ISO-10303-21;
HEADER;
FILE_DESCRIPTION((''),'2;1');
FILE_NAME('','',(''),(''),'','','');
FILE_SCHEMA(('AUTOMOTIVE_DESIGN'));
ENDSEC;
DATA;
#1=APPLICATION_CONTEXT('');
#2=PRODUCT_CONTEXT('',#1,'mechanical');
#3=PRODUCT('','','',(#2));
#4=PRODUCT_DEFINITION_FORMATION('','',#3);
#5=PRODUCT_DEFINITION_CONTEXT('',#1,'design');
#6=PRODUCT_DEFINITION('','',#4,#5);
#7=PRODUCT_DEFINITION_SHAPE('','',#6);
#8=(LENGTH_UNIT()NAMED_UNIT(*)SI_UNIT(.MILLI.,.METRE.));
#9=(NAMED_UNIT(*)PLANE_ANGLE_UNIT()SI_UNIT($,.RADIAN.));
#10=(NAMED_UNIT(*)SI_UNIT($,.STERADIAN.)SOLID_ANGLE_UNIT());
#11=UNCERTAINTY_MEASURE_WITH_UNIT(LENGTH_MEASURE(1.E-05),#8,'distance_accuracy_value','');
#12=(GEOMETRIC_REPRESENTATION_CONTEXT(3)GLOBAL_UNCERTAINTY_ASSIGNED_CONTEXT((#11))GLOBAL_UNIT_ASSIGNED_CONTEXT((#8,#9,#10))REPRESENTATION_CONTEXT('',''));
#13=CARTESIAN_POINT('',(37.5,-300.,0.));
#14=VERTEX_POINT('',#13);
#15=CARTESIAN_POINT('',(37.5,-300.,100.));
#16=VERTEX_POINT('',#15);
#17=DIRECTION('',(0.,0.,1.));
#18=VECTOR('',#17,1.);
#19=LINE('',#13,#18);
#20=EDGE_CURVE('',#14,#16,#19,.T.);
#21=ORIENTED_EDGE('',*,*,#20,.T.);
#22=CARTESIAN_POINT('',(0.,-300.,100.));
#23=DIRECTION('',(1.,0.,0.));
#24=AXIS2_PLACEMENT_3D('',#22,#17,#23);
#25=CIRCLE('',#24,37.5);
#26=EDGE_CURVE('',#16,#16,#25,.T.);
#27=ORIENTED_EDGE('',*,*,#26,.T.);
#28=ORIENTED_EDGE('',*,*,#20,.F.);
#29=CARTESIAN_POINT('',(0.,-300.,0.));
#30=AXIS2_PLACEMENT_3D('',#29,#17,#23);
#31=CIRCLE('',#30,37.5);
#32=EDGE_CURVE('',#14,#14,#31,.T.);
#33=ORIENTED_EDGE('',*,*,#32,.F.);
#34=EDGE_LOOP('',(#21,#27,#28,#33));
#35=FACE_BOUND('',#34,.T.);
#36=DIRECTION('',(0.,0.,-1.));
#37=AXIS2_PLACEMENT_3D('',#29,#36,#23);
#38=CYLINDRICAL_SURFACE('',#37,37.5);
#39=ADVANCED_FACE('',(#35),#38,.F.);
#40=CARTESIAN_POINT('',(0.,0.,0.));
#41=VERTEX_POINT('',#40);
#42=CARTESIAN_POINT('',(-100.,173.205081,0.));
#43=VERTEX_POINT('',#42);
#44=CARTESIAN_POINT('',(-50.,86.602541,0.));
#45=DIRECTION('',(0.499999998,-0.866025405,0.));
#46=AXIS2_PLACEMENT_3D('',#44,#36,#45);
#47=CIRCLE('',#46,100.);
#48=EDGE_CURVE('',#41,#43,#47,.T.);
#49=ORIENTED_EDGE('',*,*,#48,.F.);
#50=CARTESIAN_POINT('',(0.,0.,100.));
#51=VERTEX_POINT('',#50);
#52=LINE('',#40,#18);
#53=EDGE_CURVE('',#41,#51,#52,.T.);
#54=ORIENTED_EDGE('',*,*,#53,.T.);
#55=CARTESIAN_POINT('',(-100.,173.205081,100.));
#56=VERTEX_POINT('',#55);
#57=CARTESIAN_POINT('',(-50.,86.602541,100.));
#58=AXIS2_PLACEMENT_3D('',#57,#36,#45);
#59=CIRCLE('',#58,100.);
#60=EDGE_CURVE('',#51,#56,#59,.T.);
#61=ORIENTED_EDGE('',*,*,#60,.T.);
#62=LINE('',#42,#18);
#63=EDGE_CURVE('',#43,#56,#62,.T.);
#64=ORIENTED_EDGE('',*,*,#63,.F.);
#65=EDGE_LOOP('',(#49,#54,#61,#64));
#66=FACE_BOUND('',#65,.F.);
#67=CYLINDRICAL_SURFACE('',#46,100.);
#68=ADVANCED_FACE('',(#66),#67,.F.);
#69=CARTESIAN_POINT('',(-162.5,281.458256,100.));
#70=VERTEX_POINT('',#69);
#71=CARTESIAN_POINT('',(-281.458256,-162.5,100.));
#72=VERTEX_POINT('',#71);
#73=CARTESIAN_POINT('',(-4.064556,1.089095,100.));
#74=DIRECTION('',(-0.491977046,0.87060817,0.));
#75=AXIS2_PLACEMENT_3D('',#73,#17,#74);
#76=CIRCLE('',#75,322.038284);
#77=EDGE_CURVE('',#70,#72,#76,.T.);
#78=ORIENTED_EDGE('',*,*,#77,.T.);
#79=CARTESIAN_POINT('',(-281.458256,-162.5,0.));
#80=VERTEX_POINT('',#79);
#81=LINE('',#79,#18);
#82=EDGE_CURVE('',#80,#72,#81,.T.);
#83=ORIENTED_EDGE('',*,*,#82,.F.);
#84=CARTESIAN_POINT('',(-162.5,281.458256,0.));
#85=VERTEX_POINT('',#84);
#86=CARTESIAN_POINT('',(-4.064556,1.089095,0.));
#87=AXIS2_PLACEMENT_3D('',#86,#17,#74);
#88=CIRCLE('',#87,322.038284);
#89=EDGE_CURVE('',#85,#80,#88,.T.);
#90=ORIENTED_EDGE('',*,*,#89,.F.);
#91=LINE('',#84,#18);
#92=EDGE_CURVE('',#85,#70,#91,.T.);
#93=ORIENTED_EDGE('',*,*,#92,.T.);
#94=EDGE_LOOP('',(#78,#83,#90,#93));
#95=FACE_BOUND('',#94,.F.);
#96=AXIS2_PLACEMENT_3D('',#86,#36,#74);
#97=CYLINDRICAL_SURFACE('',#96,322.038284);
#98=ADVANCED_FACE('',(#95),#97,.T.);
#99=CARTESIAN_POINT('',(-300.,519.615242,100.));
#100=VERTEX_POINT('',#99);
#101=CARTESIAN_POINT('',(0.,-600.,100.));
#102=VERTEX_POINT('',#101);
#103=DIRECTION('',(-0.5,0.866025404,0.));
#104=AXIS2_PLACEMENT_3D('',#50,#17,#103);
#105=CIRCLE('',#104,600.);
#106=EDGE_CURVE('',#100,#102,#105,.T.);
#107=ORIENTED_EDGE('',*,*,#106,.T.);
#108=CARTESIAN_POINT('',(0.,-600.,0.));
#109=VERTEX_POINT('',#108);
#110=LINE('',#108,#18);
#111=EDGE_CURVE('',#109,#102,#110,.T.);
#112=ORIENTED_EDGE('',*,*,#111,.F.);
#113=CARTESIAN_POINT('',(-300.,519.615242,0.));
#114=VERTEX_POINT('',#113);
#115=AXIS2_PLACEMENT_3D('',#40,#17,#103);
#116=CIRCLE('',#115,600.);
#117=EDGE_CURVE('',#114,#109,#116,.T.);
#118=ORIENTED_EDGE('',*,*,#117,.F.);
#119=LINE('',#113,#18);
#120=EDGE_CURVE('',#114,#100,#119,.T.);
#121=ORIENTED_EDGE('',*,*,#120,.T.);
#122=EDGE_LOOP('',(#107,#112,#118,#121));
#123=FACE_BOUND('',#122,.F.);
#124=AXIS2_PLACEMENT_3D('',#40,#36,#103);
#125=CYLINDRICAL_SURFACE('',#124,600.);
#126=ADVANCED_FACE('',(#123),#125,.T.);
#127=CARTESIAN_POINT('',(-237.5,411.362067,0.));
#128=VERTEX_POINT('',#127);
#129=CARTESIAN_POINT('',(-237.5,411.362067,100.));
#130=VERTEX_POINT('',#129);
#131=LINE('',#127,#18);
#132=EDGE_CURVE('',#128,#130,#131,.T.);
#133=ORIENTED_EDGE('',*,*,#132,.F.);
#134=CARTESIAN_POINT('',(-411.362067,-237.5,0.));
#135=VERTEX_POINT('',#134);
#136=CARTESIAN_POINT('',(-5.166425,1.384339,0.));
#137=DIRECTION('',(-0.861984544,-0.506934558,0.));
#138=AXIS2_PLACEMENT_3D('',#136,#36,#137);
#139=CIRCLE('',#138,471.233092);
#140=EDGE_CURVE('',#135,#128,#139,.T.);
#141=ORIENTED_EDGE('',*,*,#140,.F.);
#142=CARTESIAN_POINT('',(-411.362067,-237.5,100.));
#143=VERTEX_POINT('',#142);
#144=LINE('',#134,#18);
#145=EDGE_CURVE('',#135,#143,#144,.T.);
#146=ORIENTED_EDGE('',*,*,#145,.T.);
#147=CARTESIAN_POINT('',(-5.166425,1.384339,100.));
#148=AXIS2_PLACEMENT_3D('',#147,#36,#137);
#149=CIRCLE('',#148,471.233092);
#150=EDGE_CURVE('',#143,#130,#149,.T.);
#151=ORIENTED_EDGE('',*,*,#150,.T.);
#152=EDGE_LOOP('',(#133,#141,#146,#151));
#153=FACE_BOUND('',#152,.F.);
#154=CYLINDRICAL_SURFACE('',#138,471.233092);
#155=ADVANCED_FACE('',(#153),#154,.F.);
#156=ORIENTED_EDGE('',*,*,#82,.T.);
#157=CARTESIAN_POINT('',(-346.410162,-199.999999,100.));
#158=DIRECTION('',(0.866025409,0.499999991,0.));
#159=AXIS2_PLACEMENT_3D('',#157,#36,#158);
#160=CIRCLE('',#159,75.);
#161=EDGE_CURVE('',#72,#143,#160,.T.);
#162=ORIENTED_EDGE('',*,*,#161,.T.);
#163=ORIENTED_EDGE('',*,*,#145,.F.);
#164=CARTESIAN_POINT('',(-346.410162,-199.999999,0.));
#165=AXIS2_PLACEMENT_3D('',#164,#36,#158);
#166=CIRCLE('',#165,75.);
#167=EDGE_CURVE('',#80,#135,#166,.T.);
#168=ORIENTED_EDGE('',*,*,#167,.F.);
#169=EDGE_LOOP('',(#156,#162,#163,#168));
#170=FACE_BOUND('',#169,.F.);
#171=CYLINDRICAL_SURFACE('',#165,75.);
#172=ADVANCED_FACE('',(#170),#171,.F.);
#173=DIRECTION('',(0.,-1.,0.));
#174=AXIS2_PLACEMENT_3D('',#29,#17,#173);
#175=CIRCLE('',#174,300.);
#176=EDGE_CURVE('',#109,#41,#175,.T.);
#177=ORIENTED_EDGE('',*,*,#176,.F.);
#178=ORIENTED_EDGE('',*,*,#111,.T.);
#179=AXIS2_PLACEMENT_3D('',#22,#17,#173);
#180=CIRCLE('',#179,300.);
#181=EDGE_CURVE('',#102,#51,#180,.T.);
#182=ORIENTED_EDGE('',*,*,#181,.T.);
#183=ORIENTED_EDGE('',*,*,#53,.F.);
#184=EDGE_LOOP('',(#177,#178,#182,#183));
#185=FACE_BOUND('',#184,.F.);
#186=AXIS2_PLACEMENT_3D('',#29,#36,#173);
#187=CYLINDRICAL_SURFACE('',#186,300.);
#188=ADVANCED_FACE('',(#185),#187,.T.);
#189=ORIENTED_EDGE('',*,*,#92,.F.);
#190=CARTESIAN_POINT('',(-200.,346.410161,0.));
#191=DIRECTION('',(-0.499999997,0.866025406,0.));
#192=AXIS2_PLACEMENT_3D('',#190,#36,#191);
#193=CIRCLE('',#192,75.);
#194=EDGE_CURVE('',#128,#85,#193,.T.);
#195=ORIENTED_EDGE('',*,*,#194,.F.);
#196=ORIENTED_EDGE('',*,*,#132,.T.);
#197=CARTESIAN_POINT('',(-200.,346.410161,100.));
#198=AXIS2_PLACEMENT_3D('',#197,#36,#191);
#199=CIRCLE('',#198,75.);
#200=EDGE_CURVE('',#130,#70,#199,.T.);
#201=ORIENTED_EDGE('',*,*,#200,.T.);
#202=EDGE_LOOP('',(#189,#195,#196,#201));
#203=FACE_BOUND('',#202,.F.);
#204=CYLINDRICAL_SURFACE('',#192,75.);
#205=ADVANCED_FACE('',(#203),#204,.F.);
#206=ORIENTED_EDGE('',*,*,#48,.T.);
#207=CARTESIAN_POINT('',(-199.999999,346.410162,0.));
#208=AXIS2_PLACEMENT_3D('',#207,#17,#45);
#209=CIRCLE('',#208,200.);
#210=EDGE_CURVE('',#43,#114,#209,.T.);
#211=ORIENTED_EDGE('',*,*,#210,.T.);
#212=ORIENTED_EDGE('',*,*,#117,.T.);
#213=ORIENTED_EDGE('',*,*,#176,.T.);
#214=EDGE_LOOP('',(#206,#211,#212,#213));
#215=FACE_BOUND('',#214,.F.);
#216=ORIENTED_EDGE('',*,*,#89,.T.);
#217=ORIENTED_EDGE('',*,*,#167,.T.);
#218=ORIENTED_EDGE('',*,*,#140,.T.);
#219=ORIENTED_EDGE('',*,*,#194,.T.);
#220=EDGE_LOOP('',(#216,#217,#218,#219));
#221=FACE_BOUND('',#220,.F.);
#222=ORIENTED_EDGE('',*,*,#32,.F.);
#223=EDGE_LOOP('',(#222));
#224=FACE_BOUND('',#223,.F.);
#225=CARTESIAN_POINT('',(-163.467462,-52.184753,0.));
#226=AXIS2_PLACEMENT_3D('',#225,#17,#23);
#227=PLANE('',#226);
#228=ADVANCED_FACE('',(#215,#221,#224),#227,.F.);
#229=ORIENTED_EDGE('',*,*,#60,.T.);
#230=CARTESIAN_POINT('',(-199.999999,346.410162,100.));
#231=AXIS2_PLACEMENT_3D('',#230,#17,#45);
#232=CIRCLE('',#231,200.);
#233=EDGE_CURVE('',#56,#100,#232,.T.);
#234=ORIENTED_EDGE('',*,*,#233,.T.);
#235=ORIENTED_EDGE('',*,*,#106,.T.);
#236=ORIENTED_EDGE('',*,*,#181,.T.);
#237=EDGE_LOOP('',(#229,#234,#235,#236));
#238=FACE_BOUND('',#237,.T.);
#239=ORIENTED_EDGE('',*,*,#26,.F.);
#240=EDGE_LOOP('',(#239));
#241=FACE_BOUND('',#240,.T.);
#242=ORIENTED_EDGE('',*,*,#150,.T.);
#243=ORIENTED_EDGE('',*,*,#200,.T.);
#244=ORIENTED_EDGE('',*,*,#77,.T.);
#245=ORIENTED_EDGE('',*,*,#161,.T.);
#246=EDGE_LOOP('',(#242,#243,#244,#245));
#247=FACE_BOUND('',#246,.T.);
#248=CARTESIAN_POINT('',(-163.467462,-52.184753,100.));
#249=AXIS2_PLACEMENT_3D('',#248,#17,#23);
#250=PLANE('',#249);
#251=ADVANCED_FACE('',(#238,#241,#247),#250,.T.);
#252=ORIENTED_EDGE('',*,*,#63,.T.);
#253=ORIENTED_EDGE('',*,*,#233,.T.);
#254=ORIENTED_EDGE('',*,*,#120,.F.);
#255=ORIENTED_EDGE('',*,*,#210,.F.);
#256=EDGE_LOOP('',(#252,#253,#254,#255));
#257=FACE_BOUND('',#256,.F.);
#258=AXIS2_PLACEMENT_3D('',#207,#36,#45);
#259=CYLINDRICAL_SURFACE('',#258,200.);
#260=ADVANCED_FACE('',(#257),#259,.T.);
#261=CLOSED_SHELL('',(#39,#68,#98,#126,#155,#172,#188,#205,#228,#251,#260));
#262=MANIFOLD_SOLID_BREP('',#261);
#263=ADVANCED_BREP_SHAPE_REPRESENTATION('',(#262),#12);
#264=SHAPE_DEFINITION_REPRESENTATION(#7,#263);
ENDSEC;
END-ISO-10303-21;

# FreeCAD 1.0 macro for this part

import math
import FreeCAD as App
import Part
import Sketcher
Q = App.Units.Quantity

doc = App.newDocument("Part")
body = doc.addObject("PartDesign::Body", "Body")

sketch1 = body.newObject("Sketcher::SketchObject", "Sketch")
sketch1.AttachmentSupport = (doc.getObject("XY_Plane"), [""])
sketch1.MapMode = "FlatFace"
sketch1.addGeometry(Part.ArcOfCircle(Part.Circle(App.Vector(0, 0, 0), App.Vector(0, 0, 1), 600), math.radians(120), math.radians(270)), False)
sketch1.addGeometry(Part.ArcOfCircle(Part.Circle(App.Vector(0, -300, 0), App.Vector(0, 0, 1), 300), math.radians(-90), math.radians(90)), False)
sketch1.addGeometry(Part.ArcOfCircle(Part.Circle(App.Vector(-50, 86.602541, 0), App.Vector(0, 0, 1), 100), math.radians(120), math.radians(300)), False)
sketch1.addGeometry(Part.ArcOfCircle(Part.Circle(App.Vector(-199.999999, 346.410162, 0), App.Vector(0, 0, 1), 200), math.radians(-60), math.radians(120)), False)
sketch1.addGeometry(Part.Circle(App.Vector(0, -300, 0), App.Vector(0, 0, 1), 37.5), False)
sketch1.addGeometry(Part.ArcOfCircle(Part.Circle(App.Vector(-346.410162, -199.999999, 0), App.Vector(0, 0, 1), 75), math.radians(-150), math.radians(29.999999)), False)
sketch1.addGeometry(Part.ArcOfCircle(Part.Circle(App.Vector(-5.166425, 1.384339, 0), App.Vector(0, 0, 1), 471.233092), math.radians(119.540143), math.radians(210.459857)), False)
sketch1.addGeometry(Part.ArcOfCircle(Part.Circle(App.Vector(-200, 346.410161, 0), App.Vector(0, 0, 1), 75), math.radians(-60), math.radians(120)), False)
sketch1.addGeometry(Part.ArcOfCircle(Part.Circle(App.Vector(-4.064556, 1.089095, 0), App.Vector(0, 0, 1), 322.038284), math.radians(119.47061), math.radians(210.52939)), False)
sketch1.addConstraint(Sketcher.Constraint("Tangent", 0, 2, 1, 1))
sketch1.addConstraint(Sketcher.Constraint("Coincident", 1, 2, 2, 2))
sketch1.addConstraint(Sketcher.Constraint("Tangent", 2, 1, 3, 1))
sketch1.addConstraint(Sketcher.Constraint("Tangent", 3, 2, 0, 1))
sketch1.addConstraint(Sketcher.Constraint("Coincident", 5, 1, 6, 2))
sketch1.addConstraint(Sketcher.Constraint("Coincident", 6, 1, 7, 2))
sketch1.addConstraint(Sketcher.Constraint("Coincident", 7, 1, 8, 1))
sketch1.addConstraint(Sketcher.Constraint("Coincident", 8, 2, 5, 2))
sketch1.addConstraint(Sketcher.Constraint("Coincident", 0, 3, -1, 1))
sketch1.addConstraint(Sketcher.Constraint("Coincident", 1, 2, -1, 1))
sketch1.addConstraint(Sketcher.Constraint("Coincident", 4, 3, 1, 3))
sketch1.addConstraint(Sketcher.Constraint("Coincident", 7, 3, 3, 3))
sketch1.addConstraint(Sketcher.Constraint("Equal", 5, 7))
sketch1.addConstraint(Sketcher.Constraint("PointOnObject", 1, 3, -2))
sketch1.addConstraint(Sketcher.Constraint("Diameter", 4, Q("75 mm")))
sketch1.addConstraint(Sketcher.Constraint("Radius", 0, Q("600 mm")))
sketch1.addConstraint(Sketcher.Constraint("Radius", 2, Q("100 mm")))
sketch1.addConstraint(Sketcher.Constraint("Radius", 5, Q("75 mm")))
sketch1.addConstraint(Sketcher.Constraint("DistanceX", 2, 3, -1, 1, Q("50 mm")))
sketch1.addConstraint(Sketcher.Constraint("DistanceX", 3, 3, -1, 1, Q("199.999999 mm")))
sketch1.addConstraint(Sketcher.Constraint("DistanceY", 5, 3, -1, 1, Q("199.999999 mm")))
sketch1.addConstraint(Sketcher.Constraint("DistanceX", 6, 1, 7, 1, Q("75 mm")))
sketch1.addConstraint(Sketcher.Constraint("DistanceY", 5, 1, 8, 2, Q("75 mm")))
sketch1.addConstraint(Sketcher.Constraint("DistanceY", 5, 1, -1, 1, Q("237.5 mm")))
sketch1.addConstraint(Sketcher.Constraint("DistanceX", 6, 1, -1, 1, Q("237.5 mm")))
sketch1.addConstraint(Sketcher.Constraint("Radius", 6, Q("471.233092 mm")))
sketch1.addConstraint(Sketcher.Constraint("Radius", 8, Q("322.038284 mm")))
sketch1.addConstraint(Sketcher.Constraint("DistanceY", 6, 3, 2, 3, Q("85.218201 mm")))
pad1 = body.newObject("PartDesign::Pad", "Pad")
pad1.Profile = sketch1
pad1.Length = 100

doc.recompute()
